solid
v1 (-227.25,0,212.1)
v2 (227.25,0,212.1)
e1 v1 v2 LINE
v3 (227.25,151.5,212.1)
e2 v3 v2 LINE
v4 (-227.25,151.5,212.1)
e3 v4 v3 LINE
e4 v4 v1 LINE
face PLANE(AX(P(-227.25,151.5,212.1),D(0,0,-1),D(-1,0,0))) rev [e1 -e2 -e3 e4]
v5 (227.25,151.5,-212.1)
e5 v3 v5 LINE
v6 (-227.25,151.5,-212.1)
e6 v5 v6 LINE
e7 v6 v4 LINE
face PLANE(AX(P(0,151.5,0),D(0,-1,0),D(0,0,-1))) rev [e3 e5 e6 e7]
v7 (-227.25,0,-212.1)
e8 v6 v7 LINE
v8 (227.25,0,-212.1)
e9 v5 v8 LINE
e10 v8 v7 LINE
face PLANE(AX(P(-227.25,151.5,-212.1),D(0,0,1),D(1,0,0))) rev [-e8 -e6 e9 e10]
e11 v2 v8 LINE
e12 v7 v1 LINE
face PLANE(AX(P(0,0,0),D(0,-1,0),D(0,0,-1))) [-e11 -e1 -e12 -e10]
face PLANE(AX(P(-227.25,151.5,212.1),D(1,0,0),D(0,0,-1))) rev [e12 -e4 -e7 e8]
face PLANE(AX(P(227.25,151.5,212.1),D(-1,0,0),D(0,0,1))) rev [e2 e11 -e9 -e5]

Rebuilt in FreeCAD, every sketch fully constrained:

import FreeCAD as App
import Part
import Sketcher

doc = App.newDocument("Part")
params = doc.addObject("Spreadsheet::Sheet", "Params")
for row, (alias, value) in enumerate([
    ("sketch1_width", "454.5 mm"),
    ("sketch1_height", "424.2 mm"),
    ("pad1_length", "151.5 mm"),
], start=1):
    params.set(f"A{row}", alias)
    params.set(f"B{row}", "=" + value)
    params.setAlias(f"B{row}", alias)

body = doc.addObject("PartDesign::Body", "Body")

# Sketch on XZ plane
sketch1 = doc.addObject("Sketcher::SketchObject", "Sketch")
body.addObject(sketch1)
sketch1.AttachmentSupport = (doc.XZ_Plane, [""])
sketch1.MapMode = "FlatFace"
sketch1.addGeometry(Part.LineSegment(App.Vector(-227, -212, 0), App.Vector(-227, 212, 0)), False)
sketch1.addGeometry(Part.LineSegment(App.Vector(-227, 212, 0), App.Vector(227, 212, 0)), False)
sketch1.addGeometry(Part.LineSegment(App.Vector(227, 212, 0), App.Vector(227, -212, 0)), False)
sketch1.addGeometry(Part.LineSegment(App.Vector(227, -212, 0), App.Vector(-227, -212, 0)), False)
sketch1.addConstraint(Sketcher.Constraint("Coincident", 0, 2, 1, 1))
sketch1.addConstraint(Sketcher.Constraint("Coincident", 1, 2, 2, 1))
sketch1.addConstraint(Sketcher.Constraint("Coincident", 2, 2, 3, 1))
sketch1.addConstraint(Sketcher.Constraint("Coincident", 3, 2, 0, 1))
sketch1.addConstraint(Sketcher.Constraint("Vertical", 0))
sketch1.addConstraint(Sketcher.Constraint("Horizontal", 1))
sketch1.addConstraint(Sketcher.Constraint("Vertical", 2))
sketch1.addConstraint(Sketcher.Constraint("Horizontal", 3))
sketch1.addConstraint(Sketcher.Constraint("Symmetric", 0, 2, 2, 2, -1, 1))
sketch1.addConstraint(Sketcher.Constraint("DistanceX", 1, 1, 1, 2, 454.5))
sketch1.addConstraint(Sketcher.Constraint("DistanceY", 0, 1, 0, 2, 424.2))
sketch1.setExpression("Constraints[9]", "Params.sketch1_width")
sketch1.setExpression("Constraints[10]", "Params.sketch1_height")
pad1 = doc.addObject("PartDesign::Pad", "Pad")
body.addObject(pad1)
pad1.Profile = sketch1
pad1.setExpression("Length", "Params.pad1_length")
pad1.Reversed = True

doc.recompute()
